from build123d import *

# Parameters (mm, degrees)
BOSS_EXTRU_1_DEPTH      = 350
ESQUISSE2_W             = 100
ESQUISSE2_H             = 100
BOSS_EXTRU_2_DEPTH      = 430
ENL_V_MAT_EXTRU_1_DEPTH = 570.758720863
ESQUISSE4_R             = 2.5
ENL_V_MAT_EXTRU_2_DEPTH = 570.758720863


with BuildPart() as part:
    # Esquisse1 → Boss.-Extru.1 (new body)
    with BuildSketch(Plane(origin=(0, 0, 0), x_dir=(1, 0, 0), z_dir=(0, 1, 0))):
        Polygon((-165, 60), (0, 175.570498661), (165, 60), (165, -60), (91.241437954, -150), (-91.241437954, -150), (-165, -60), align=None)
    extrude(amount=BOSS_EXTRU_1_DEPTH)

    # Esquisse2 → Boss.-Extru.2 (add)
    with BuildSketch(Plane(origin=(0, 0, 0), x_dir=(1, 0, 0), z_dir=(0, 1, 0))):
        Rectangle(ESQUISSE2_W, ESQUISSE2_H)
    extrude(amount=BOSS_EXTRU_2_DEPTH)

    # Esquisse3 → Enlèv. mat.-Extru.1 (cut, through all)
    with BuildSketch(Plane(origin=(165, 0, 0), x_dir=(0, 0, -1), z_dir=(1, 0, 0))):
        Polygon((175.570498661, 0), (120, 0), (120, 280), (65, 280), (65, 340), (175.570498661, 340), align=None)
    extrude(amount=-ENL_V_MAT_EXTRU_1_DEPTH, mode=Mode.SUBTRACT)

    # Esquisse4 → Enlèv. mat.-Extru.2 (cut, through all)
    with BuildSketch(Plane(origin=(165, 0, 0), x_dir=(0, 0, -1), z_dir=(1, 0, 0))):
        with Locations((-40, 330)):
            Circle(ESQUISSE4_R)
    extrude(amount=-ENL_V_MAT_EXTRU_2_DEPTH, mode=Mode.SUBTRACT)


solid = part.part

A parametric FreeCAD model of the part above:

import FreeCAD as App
import Part
import Sketcher

V = App.Vector


def add_polygon(sketch, points):
    """Adds a closed chain of lines whose ends are joined by coincident constraints."""
    first, n = sketch.GeometryCount, len(points)
    for a, b in zip(points, points[1:] + points[:1]):
        sketch.addGeometry(Part.LineSegment(App.Vector(*a, 0), App.Vector(*b, 0)), False)
    for i in range(n):
        sketch.addConstraint(Sketcher.Constraint("Coincident", first + i, 2, first + (i + 1) % n, 1))

doc = App.newDocument("Part")
params = doc.addObject("Spreadsheet::Sheet", "Params")
for row, (alias, value) in enumerate([
    ("sketch1_height", "120 mm"),
    ("pad1_length", "350 mm"),
    ("sketch2_width", "100 mm"),
    ("pad2_length", "430 mm"),
    ("sketch3_width", "340 mm"),
    ("sketch3_width2", "60 mm"),
    ("sketch3_height", "55 mm"),
    ("sketch4_diameter", "5 mm"),
], start=1):
    params.set(f"A{row}", alias)
    params.set(f"B{row}", "=" + value)
    params.setAlias(f"B{row}", alias)

body = doc.addObject("PartDesign::Body", "Body")

# Sketch on XZ plane
sketch1 = body.newObject("Sketcher::SketchObject", "Sketch")
sketch1.AttachmentSupport = (doc.getObject("XZ_Plane"), [""])
sketch1.MapMode = "FlatFace"
add_polygon(sketch1, [(0, -176), (-165, -60), (-165, 60), (-91, 150), (91, 150), (165, 60), (165, -60)])  # lines 0-6
sketch1.addConstraint(Sketcher.Constraint("Vertical", 1))
sketch1.addConstraint(Sketcher.Constraint("Horizontal", 3))
sketch1.addConstraint(Sketcher.Constraint("Vertical", 5))
sketch1.addConstraint(Sketcher.Constraint("Symmetric", 0, 2, 4, 2, -1, 1))
sketch1.addConstraint(Sketcher.Constraint("PointOnObject", 6, 2, -2))
sketch1.addConstraint(Sketcher.Constraint("Horizontal", 1, 2, 4, 2))
sketch1.addConstraint(Sketcher.Constraint("Horizontal", 0, 2, 5, 2))
sketch1.addConstraint(Sketcher.Constraint("Equal", 2, 4))
sketch1.addConstraint(Sketcher.Constraint("DistanceY", 1, 1, 1, 2, 120.0))
sketch1.addConstraint(Sketcher.Constraint("DistanceX", 0, 2, -1, 1, 165.0))
sketch1.addConstraint(Sketcher.Constraint("DistanceY", -1, 1, 2, 2, 150.0))
sketch1.addConstraint(Sketcher.Constraint("DistanceY", 6, 2, -1, 1, 175.570499))
sketch1.addConstraint(Sketcher.Constraint("DistanceX", 3, 1, 3, 2, 182.482876))
sketch1.setExpression("Constraints[15]", "Params.sketch1_height")
pad1 = body.newObject("PartDesign::Pad", "Pad")
pad1.Profile = sketch1
pad1.setExpression("Length", "Params.pad1_length")
pad1.Reversed = True

# Sketch on XZ plane
sketch2 = body.newObject("Sketcher::SketchObject", "Sketch001")
sketch2.AttachmentSupport = (doc.getObject("XZ_Plane"), [""])
sketch2.MapMode = "FlatFace"
add_polygon(sketch2, [(-50, -50), (-50, 50), (50, 50), (50, -50)])  # lines 0-3
sketch2.addConstraint(Sketcher.Constraint("Vertical", 0))
sketch2.addConstraint(Sketcher.Constraint("Horizontal", 1))
sketch2.addConstraint(Sketcher.Constraint("Vertical", 2))
sketch2.addConstraint(Sketcher.Constraint("Horizontal", 3))
sketch2.addConstraint(Sketcher.Constraint("Symmetric", 0, 2, 2, 2, -1, 1))
sketch2.addConstraint(Sketcher.Constraint("Equal", 3, 0))
sketch2.addConstraint(Sketcher.Constraint("DistanceX", 1, 1, 1, 2, 100.0))
sketch2.setExpression("Constraints[10]", "Params.sketch2_width")
pad2 = body.newObject("PartDesign::Pad", "Pad001")
pad2.Profile = sketch2
pad2.setExpression("Length", "Params.pad2_length")
pad2.Reversed = True

# Sketch on YZ plane
sketch3 = body.newObject("Sketcher::SketchObject", "Sketch002")
sketch3.AttachmentSupport = (doc.getObject("YZ_Plane"), [""])
sketch3.MapMode = "FlatFace"
sketch3.AttachmentOffset = App.Placement(V(0, 0, 165), App.Rotation())
add_polygon(sketch3, [(0, -120), (0, -176), (340, -176), (340, -65), (280, -65), (280, -120)])  # lines 0-5
sketch3.addConstraint(Sketcher.Constraint("Vertical", 0))
sketch3.addConstraint(Sketcher.Constraint("Horizontal", 1))
sketch3.addConstraint(Sketcher.Constraint("Vertical", 2))
sketch3.addConstraint(Sketcher.Constraint("Horizontal", 3))
sketch3.addConstraint(Sketcher.Constraint("Vertical", 4))
sketch3.addConstraint(Sketcher.Constraint("Horizontal", 5))
sketch3.addConstraint(Sketcher.Constraint("PointOnObject", 0, 2, -2))
sketch3.addConstraint(Sketcher.Constraint("DistanceX", 1, 1, 1, 2, 340.0))
sketch3.addConstraint(Sketcher.Constraint("DistanceX", 3, 2, 3, 1, 60.0))
sketch3.addConstraint(Sketcher.Constraint("DistanceY", 4, 2, 4, 1, 55.0))
sketch3.addConstraint(Sketcher.Constraint("DistanceY", 2, 2, -1, 1, 65.0))
sketch3.addConstraint(Sketcher.Constraint("DistanceY", 0, 2, 0, 1, 55.570499))
sketch3.setExpression("Constraints[13]", "Params.sketch3_width")
sketch3.setExpression("Constraints[14]", "Params.sketch3_width2")
sketch3.setExpression("Constraints[15]", "Params.sketch3_height")
pocket1 = body.newObject("PartDesign::Pocket", "Pocket")
pocket1.Profile = sketch3
pocket1.Type = "ThroughAll"

# Sketch on YZ plane
sketch4 = body.newObject("Sketcher::SketchObject", "Sketch003")
sketch4.AttachmentSupport = (doc.getObject("YZ_Plane"), [""])
sketch4.MapMode = "FlatFace"
sketch4.AttachmentOffset = App.Placement(V(0, 0, 165), App.Rotation())
sketch4.addGeometry(Part.Circle(V(330, 40, 0), V(0, 0, 1), 2.5), False)
sketch4.addConstraint(Sketcher.Constraint("Diameter", 0, 5.0))
sketch4.addConstraint(Sketcher.Constraint("DistanceX", -1, 1, 0, 3, 330.0))
sketch4.addConstraint(Sketcher.Constraint("DistanceY", -1, 1, 0, 3, 40.0))
sketch4.setExpression("Constraints[0]", "Params.sketch4_diameter")
pocket2 = body.newObject("PartDesign::Pocket", "Pocket001")
pocket2.Profile = sketch4
pocket2.Type = "ThroughAll"

doc.recompute()
